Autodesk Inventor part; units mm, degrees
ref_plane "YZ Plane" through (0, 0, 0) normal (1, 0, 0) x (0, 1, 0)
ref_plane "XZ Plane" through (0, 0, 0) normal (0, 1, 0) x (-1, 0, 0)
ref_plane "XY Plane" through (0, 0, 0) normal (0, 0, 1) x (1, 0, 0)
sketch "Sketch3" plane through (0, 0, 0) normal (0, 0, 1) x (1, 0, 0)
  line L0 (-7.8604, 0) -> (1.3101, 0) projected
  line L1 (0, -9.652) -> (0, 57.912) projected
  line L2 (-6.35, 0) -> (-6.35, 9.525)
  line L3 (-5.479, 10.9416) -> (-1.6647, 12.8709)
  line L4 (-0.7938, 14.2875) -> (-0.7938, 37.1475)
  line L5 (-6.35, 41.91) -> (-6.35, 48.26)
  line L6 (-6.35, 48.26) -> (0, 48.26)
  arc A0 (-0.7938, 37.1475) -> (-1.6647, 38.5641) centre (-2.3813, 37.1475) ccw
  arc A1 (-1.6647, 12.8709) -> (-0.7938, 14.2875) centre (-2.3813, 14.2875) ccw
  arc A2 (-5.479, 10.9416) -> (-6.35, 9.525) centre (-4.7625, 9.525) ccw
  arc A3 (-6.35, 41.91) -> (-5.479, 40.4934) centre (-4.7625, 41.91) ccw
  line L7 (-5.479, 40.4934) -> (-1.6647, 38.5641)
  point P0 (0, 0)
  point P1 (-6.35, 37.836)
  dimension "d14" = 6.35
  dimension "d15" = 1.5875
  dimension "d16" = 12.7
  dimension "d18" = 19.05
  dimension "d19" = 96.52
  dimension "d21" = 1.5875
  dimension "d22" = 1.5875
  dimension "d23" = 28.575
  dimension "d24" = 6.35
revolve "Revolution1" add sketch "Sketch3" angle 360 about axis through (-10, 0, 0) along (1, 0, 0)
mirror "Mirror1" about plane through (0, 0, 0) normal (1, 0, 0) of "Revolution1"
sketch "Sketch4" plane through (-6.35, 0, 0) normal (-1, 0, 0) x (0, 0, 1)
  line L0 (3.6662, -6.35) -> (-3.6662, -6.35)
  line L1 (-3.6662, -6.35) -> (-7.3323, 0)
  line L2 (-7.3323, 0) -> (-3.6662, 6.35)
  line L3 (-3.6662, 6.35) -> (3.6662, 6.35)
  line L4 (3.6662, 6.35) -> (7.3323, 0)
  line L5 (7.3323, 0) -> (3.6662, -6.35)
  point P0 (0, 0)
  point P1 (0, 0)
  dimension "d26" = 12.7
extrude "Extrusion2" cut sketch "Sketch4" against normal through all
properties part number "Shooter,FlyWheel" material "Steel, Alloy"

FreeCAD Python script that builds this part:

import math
import FreeCAD as App
import Part
import Sketcher
from FreeCAD import Vector
Q = App.Units.Quantity

doc = App.newDocument("Part")
body = doc.addObject("PartDesign::Body", "Body")

# Sketch on XY plane
sketch1 = body.newObject("Sketcher::SketchObject", "Sketch")
sketch1.AttachmentSupport = (doc.getObject("XY_Plane"), [""])
sketch1.MapMode = "FlatFace"
sketch1.addGeometry([
    Part.LineSegment(Vector(-6.3, 9.5, 0), Vector(-6.3, 0, 0)),  # 0
    Part.LineSegment(Vector(-6.3, 0, 0), Vector(0, 0, 0)),  # 1
    Part.LineSegment(Vector(0, 0, 0), Vector(0, 48.3, 0)),  # 2
    Part.LineSegment(Vector(0, 48.3, 0), Vector(-6.3, 48.3, 0)),  # 3
    Part.LineSegment(Vector(-6.3, 48.3, 0), Vector(-6.3, 41.9, 0)),  # 4
    Part.ArcOfCircle(Part.Circle(Vector(-4.8, 41.9, 0), Vector(0, 0, 1), 1.6), math.radians(180), math.radians(243)),  # 5
    Part.LineSegment(Vector(-5.5, 40.5, 0), Vector(-1.7, 38.6, 0)),  # 6
    Part.ArcOfCircle(Part.Circle(Vector(-2.4, 37.1, 0), Vector(0, 0, 1), 1.6), math.radians(0), math.radians(63)),  # 7
    Part.LineSegment(Vector(-0.8, 37.1, 0), Vector(-0.8, 14.3, 0)),  # 8
    Part.ArcOfCircle(Part.Circle(Vector(-2.4, 14.3, 0), Vector(0, 0, 1), 1.6), math.radians(-63), math.radians(0)),  # 9
    Part.LineSegment(Vector(-1.7, 12.9, 0), Vector(-5.5, 10.9, 0)),  # 10
    Part.ArcOfCircle(Part.Circle(Vector(-4.8, 9.5, 0), Vector(0, 0, 1), 1.6), math.radians(117), math.radians(180)),  # 11
], False)
sketch1.addConstraint([
    Sketcher.Constraint("Coincident", 0, 2, 1, 1),
    Sketcher.Constraint("Coincident", 1, 2, 2, 1),
    Sketcher.Constraint("Coincident", 2, 2, 3, 1),
    Sketcher.Constraint("Coincident", 3, 2, 4, 1),
    Sketcher.Constraint("Tangent", 4, 2, 5, 1),
    Sketcher.Constraint("Tangent", 5, 2, 6, 1),
    Sketcher.Constraint("Tangent", 6, 2, 7, 2),
    Sketcher.Constraint("Tangent", 7, 1, 8, 1),
    Sketcher.Constraint("Tangent", 8, 2, 9, 2),
    Sketcher.Constraint("Tangent", 9, 1, 10, 1),
    Sketcher.Constraint("Tangent", 10, 2, 11, 1),
    Sketcher.Constraint("Tangent", 11, 2, 0, 1),
    Sketcher.Constraint("Vertical", 0),
    Sketcher.Constraint("Horizontal", 1),
    Sketcher.Constraint("Vertical", 2),
    Sketcher.Constraint("Horizontal", 3),
    Sketcher.Constraint("Vertical", 4),
    Sketcher.Constraint("Vertical", 8),
    Sketcher.Constraint("Coincident", 1, 2, -1, 1),
    Sketcher.Constraint("Equal", 5, 7),
    Sketcher.Constraint("Equal", 7, 9),
    Sketcher.Constraint("Equal", 9, 11),
    Sketcher.Constraint("Vertical", 5, 3, 11, 3),
    Sketcher.Constraint("Vertical", 6, 2, 9, 1),
    Sketcher.Constraint("Equal", 3, 4),
    Sketcher.Constraint("Radius", 5, Q("0.0625 in")),
    Sketcher.Constraint("DistanceX", 1, 1, 1, 2, Q("0.25 in")),
    Sketcher.Constraint("DistanceY", 2, 1, 2, 2, Q("1.9 in")),
    Sketcher.Constraint("DistanceY", 8, 2, 8, 1, Q("0.9 in")),
    Sketcher.Constraint("DistanceY", 0, 2, 0, 1, Q("0.375 in")),
    Sketcher.Constraint("Angle", 6, Q("-26.8306 deg")),
])
revolution = body.newObject("PartDesign::Revolution", "Revolution")
revolution.Profile = sketch1
revolution.ReferenceAxis = (sketch1, ["H_Axis"])
revolution.Angle = 360
doc.recompute()

mirrored = body.newObject("PartDesign::Mirrored", "Mirrored")
mirrored.Originals = [revolution]
mirrored.MirrorPlane = (doc.getObject("YZ_Plane"), [""])
body.Tip = mirrored

# Sketch on YZ plane
sketch2 = body.newObject("Sketcher::SketchObject", "Sketch001")
sketch2.AttachmentSupport = (doc.getObject("YZ_Plane"), [""])
sketch2.MapMode = "FlatFace"
sketch2.AttachmentOffset = App.Placement(Vector(0, 0, -0.25 * 25.4), App.Rotation())
sketch2.addGeometry([
    Part.LineSegment(Vector(-6, -4, 0), Vector(-6, 4, 0)),  # 0
    Part.LineSegment(Vector(-6, 4, 0), Vector(0, 7, 0)),  # 1
    Part.LineSegment(Vector(0, 7, 0), Vector(6, 4, 0)),  # 2
    Part.LineSegment(Vector(6, 4, 0), Vector(6, -4, 0)),  # 3
    Part.LineSegment(Vector(6, -4, 0), Vector(0, -7, 0)),  # 4
    Part.LineSegment(Vector(0, -7, 0), Vector(-6, -4, 0)),  # 5
], False)
sketch2.addConstraint([
    Sketcher.Constraint("Coincident", 0, 2, 1, 1),
    Sketcher.Constraint("Coincident", 1, 2, 2, 1),
    Sketcher.Constraint("Coincident", 2, 2, 3, 1),
    Sketcher.Constraint("Coincident", 3, 2, 4, 1),
    Sketcher.Constraint("Coincident", 4, 2, 5, 1),
    Sketcher.Constraint("Coincident", 5, 2, 0, 1),
    Sketcher.Constraint("Vertical", 0),
    Sketcher.Constraint("Vertical", 3),
    Sketcher.Constraint("Symmetric", 0, 2, 3, 2, -1, 1),
    Sketcher.Constraint("Symmetric", 1, 2, 4, 2, -1, 1),
    Sketcher.Constraint("PointOnObject", 1, 2, -2),
    Sketcher.Constraint("Parallel", 2, 5),
    Sketcher.Constraint("Horizontal", 0, 2, 2, 2),
    Sketcher.Constraint("DistanceX", 0, 2, 2, 2, Q("0.5 in")),
    Sketcher.Constraint("Angle", 1, Q("29.9995 deg")),
    Sketcher.Constraint("DistanceY", 3, 2, 1, 2, Q("0.433 in")),
])
pocket1 = body.newObject("PartDesign::Pocket", "Pocket")
pocket1.Profile = sketch2
pocket1.Type = "ThroughAll"
pocket1.Reversed = True

doc.recompute()
